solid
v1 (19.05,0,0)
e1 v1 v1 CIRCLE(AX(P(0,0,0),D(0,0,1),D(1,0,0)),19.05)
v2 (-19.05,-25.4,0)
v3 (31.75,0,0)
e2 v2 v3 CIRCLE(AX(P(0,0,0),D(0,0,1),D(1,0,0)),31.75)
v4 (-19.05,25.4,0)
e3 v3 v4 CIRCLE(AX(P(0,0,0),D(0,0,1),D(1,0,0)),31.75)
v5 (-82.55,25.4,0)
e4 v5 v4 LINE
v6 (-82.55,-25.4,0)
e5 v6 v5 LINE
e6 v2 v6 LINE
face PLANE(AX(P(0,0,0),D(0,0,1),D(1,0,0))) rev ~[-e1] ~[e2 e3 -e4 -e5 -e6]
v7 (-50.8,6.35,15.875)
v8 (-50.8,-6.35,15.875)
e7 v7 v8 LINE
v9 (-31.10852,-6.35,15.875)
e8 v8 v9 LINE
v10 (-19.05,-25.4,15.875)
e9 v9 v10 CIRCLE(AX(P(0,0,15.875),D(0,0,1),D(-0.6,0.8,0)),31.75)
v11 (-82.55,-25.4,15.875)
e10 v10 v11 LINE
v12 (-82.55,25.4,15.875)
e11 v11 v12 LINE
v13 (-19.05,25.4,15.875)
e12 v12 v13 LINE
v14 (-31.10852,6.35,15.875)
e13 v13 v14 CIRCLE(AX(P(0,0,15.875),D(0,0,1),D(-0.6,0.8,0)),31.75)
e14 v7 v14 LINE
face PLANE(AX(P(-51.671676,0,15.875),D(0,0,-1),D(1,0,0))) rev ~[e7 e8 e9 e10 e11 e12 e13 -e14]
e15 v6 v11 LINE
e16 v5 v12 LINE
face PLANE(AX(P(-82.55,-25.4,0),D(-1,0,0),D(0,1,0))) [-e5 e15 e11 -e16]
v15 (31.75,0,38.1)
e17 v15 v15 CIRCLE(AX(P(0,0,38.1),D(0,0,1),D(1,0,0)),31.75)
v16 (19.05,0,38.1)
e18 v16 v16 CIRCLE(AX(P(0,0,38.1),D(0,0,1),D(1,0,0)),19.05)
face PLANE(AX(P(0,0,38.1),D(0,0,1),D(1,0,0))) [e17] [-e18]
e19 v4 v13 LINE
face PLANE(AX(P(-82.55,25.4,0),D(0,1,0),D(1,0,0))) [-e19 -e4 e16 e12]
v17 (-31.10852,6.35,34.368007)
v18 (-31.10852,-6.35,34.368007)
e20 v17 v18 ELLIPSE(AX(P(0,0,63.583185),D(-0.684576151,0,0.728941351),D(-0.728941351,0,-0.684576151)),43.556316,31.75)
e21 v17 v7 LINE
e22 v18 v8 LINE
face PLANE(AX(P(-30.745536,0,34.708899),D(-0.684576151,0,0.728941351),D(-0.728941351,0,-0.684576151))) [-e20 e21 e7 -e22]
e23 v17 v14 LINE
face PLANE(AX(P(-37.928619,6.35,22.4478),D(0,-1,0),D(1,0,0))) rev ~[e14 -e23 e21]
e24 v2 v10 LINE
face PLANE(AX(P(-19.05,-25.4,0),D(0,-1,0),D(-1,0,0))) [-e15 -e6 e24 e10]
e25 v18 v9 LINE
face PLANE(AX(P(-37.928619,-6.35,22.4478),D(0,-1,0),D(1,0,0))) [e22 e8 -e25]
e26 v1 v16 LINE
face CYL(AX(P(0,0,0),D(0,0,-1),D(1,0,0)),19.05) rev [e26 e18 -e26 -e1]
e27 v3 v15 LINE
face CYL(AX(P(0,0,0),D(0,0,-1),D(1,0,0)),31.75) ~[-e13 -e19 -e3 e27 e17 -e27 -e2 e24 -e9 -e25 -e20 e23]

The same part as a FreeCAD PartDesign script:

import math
import FreeCAD as App
import Part
import Sketcher

V = App.Vector
Q = App.Units.Quantity

doc = App.newDocument("Part")
body = doc.addObject("PartDesign::Body", "Body")

sketch1 = body.newObject("Sketcher::SketchObject", "Sketch")
sketch1.AttachmentSupport = (doc.getObject("XY_Plane"), [""])
sketch1.MapMode = "FlatFace"
sketch1.addGeometry(Part.Circle(V(0, 0, 0), V(0, 0, 1), 31.75), False)
sketch1.addGeometry(Part.Circle(V(0, 0, 0), V(0, 0, 1), 19.05), False)
sketch1.addConstraint(Sketcher.Constraint("Coincident", 0, 3, -1, 1))
sketch1.addConstraint(Sketcher.Constraint("Coincident", 1, 3, -1, 1))
sketch1.addConstraint(Sketcher.Constraint("Diameter", 0, Q("2.5 in")))
sketch1.addConstraint(Sketcher.Constraint("Diameter", 1, Q("1.5 in")))
pad1 = body.newObject("PartDesign::Pad", "Pad")
pad1.Profile = sketch1
pad1.Length = Q("1.5 in")

sketch2 = body.newObject("Sketcher::SketchObject", "Sketch001")
sketch2.AttachmentSupport = (doc.getObject("XY_Plane"), [""])
sketch2.MapMode = "FlatFace"
sketch2.addGeometry(Part.LineSegment(V(-82.55, 25.4, 0), V(-19.05, 25.4, 0)), False)
sketch2.addGeometry(Part.ArcOfCircle(Part.Circle(V(0, 0, 0), V(0, 0, 1), 31.75), math.radians(126.869898), math.radians(233.130102)), False)
sketch2.addGeometry(Part.LineSegment(V(-19.05, -25.4, 0), V(-82.55, -25.4, 0)), False)
sketch2.addGeometry(Part.LineSegment(V(-82.55, -25.4, 0), V(-82.55, 25.4, 0)), False)
sketch2.addConstraint(Sketcher.Constraint("Coincident", 0, 2, 1, 1))
sketch2.addConstraint(Sketcher.Constraint("Coincident", 1, 2, 2, 1))
sketch2.addConstraint(Sketcher.Constraint("Coincident", 2, 2, 3, 1))
sketch2.addConstraint(Sketcher.Constraint("Coincident", 3, 2, 0, 1))
sketch2.addConstraint(Sketcher.Constraint("Horizontal", 0))
sketch2.addConstraint(Sketcher.Constraint("Horizontal", 2))
sketch2.addConstraint(Sketcher.Constraint("Vertical", 3))
sketch2.addConstraint(Sketcher.Constraint("Coincident", 1, 3, -1, 1))
sketch2.addConstraint(Sketcher.Constraint("Vertical", 0, 2, 1, 2))
sketch2.addConstraint(Sketcher.Constraint("DistanceY", 3, 1, 3, 2, Q("2 in")))
sketch2.addConstraint(Sketcher.Constraint("Radius", 1, Q("1.25 in")))
sketch2.addConstraint(Sketcher.Constraint("DistanceX", 0, 1, 0, 2, Q("2.5 in")))
pad2 = body.newObject("PartDesign::Pad", "Pad001")
pad2.Profile = sketch2
pad2.Length = Q("0.625 in")

sketch3 = body.newObject("Sketcher::SketchObject", "Sketch002")
sketch3.AttachmentSupport = (doc.getObject("XZ_Plane"), [""])
sketch3.MapMode = "FlatFace"
sketch3.addGeometry(Part.LineSegment(V(-30.745536, 34.708899, 0), V(-50.8, 15.875, 0)), False)
sketch3.addGeometry(Part.LineSegment(V(-50.8, 15.875, 0), V(-30.745536, 15.875, 0)), False)
sketch3.addGeometry(Part.LineSegment(V(-30.745536, 15.875, 0), V(-30.745536, 34.708899, 0)), False)
sketch3.addConstraint(Sketcher.Constraint("Coincident", 0, 2, 1, 1))
sketch3.addConstraint(Sketcher.Constraint("Coincident", 1, 2, 2, 1))
sketch3.addConstraint(Sketcher.Constraint("Coincident", 2, 2, 0, 1))
sketch3.addConstraint(Sketcher.Constraint("Horizontal", 1))
sketch3.addConstraint(Sketcher.Constraint("Vertical", 2))
sketch3.addConstraint(Sketcher.Constraint("DistanceX", 0, 2, -1, 1, Q("2 in")))
sketch3.addConstraint(Sketcher.Constraint("DistanceY", -1, 1, 0, 2, Q("0.625 in")))
sketch3.addConstraint(Sketcher.Constraint("DistanceY", 2, 1, 2, 2, Q("18.833899 mm")))
sketch3.addConstraint(Sketcher.Constraint("DistanceX", 1, 1, 1, 2, Q("20.054464 mm")))
pad3 = body.newObject("PartDesign::Pad", "Pad002")
pad3.Profile = sketch3
pad3.Length = Q("0.5 in")
pad3.Midplane = True

doc.recompute()
